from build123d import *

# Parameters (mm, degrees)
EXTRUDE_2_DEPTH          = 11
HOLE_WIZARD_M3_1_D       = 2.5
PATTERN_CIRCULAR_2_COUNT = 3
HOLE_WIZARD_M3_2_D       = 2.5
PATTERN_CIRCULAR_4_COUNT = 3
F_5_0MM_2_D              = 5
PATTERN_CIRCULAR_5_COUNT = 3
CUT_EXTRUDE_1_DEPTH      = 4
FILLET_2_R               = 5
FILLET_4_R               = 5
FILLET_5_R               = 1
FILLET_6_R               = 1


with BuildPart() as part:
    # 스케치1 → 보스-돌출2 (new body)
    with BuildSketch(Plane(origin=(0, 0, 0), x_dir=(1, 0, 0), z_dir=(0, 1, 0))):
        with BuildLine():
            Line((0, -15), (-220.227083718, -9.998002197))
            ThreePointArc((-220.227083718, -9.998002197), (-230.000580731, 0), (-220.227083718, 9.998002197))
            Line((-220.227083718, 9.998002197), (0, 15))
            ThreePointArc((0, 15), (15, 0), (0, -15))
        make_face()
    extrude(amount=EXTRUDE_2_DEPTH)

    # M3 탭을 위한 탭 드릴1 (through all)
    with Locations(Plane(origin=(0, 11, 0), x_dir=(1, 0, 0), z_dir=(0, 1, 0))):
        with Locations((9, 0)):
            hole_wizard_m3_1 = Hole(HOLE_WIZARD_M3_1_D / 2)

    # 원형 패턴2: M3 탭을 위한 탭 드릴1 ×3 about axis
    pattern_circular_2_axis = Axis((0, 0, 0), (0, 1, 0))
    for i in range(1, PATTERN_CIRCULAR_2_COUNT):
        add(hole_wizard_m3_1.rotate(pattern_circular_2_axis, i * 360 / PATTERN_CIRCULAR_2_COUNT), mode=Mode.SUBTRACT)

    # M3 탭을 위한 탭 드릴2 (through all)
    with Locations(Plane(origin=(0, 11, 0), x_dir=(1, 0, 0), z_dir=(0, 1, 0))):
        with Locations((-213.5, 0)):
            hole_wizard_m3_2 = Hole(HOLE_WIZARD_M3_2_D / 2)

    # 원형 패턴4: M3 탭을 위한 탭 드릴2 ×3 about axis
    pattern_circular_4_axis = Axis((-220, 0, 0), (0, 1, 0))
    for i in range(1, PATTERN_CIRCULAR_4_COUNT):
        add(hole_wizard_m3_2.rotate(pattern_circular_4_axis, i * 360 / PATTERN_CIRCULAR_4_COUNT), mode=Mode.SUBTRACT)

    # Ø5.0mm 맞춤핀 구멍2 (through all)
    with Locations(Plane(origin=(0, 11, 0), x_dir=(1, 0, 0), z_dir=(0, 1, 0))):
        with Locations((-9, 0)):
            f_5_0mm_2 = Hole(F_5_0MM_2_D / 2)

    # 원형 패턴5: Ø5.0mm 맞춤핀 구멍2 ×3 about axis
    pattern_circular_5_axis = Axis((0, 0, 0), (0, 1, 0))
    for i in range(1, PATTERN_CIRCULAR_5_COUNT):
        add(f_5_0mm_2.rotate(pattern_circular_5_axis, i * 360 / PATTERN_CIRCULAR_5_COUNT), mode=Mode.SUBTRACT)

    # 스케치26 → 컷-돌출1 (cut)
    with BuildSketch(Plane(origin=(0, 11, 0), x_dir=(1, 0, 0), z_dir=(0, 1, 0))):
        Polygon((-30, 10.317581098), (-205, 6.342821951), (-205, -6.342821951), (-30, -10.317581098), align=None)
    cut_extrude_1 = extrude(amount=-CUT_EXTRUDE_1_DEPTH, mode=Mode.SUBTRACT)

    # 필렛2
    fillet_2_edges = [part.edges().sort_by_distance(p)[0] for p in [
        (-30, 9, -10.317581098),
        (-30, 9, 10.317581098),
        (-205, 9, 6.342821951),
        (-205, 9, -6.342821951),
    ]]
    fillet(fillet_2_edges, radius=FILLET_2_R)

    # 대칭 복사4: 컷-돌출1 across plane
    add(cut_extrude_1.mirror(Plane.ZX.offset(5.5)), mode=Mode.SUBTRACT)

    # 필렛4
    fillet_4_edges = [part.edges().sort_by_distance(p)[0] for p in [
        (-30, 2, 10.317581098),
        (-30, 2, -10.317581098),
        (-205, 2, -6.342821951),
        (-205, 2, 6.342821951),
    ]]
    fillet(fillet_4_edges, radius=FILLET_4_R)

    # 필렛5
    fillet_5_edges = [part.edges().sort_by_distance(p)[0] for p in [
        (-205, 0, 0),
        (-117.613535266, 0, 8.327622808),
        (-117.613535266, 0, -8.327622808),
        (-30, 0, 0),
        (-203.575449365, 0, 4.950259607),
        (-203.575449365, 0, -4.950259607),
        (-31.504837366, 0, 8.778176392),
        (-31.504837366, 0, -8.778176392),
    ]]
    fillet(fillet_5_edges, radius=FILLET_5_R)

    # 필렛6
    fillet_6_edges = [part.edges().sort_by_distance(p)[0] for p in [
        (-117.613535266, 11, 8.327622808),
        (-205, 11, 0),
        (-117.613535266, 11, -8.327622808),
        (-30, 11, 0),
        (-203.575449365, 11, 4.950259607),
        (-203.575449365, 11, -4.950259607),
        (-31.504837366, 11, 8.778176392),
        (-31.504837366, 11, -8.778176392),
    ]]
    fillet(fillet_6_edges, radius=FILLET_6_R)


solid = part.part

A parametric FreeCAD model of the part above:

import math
import FreeCAD as App
import Part
import Sketcher
from FreeCAD import Vector


def edges_at(feature, points):
    """Names of the edges that pass closest to the given points."""
    edges = feature.Shape.Edges
    near = lambda p: min(range(len(edges)), key=lambda i: edges[i].distToShape(Part.Vertex(*p))[0])
    return sorted({f"Edge{near(p) + 1}" for p in points})

doc = App.newDocument("Part")
body = doc.addObject("PartDesign::Body", "Body")

# Sketch on XZ plane
sketch1 = body.newObject("Sketcher::SketchObject", "Sketch")
sketch1.AttachmentSupport = (doc.getObject("XZ_Plane"), [""])
sketch1.MapMode = "FlatFace"
sketch1.addGeometry(Part.LineSegment(Vector(-220, 10, 0), Vector(0, 15, 0)), False)
sketch1.addGeometry(Part.ArcOfCircle(Part.Circle(Vector(0, 0, 0), Vector(0, 0, 1), 15), math.radians(-90), math.radians(90)), False)
sketch1.addGeometry(Part.LineSegment(Vector(0, -15, 0), Vector(-220, -10, 0)), False)
sketch1.addGeometry(Part.ArcOfCircle(Part.Circle(Vector(-220, 0, 0), Vector(0, 0, 1), 10), math.radians(91), math.radians(269)), False)
sketch1.addConstraint(Sketcher.Constraint("Coincident", 0, 2, 1, 2))
sketch1.addConstraint(Sketcher.Constraint("Coincident", 1, 1, 2, 1))
sketch1.addConstraint(Sketcher.Constraint("Tangent", 2, 2, 3, 2))
sketch1.addConstraint(Sketcher.Constraint("Tangent", 3, 1, 0, 1))
sketch1.addConstraint(Sketcher.Constraint("Coincident", 1, 3, -1, 1))
sketch1.addConstraint(Sketcher.Constraint("Symmetric", 2, 2, 3, 1, -1))
sketch1.addConstraint(Sketcher.Constraint("PointOnObject", 0, 2, -2))
sketch1.addConstraint(Sketcher.Constraint("Radius", 1, 15.0))
sketch1.addConstraint(Sketcher.Constraint("DistanceX", 3, 3, -1, 1, 220.0))
sketch1.addConstraint(Sketcher.Constraint("Radius", 3, 10.000581))
pad1 = body.newObject("PartDesign::Pad", "Pad")
pad1.Profile = sketch1
pad1.Length = 11
pad1.Reversed = True

# Sketch on XZ plane
sketch2 = body.newObject("Sketcher::SketchObject", "Sketch001")
sketch2.AttachmentSupport = (doc.getObject("XZ_Plane"), [""])
sketch2.MapMode = "FlatFace"
sketch2.AttachmentOffset = App.Placement(Vector(0, 0, -11), App.Rotation())
sketch2.addGeometry(Part.Circle(Vector(9, 0, 0), Vector(0, 0, 1), 1.2), False)
sketch2.addConstraint(Sketcher.Constraint("PointOnObject", 0, 3, -1))
sketch2.addConstraint(Sketcher.Constraint("Diameter", 0, 2.5))
sketch2.addConstraint(Sketcher.Constraint("DistanceX", -1, 1, 0, 3, 9.0))
doc.recompute()
hole = body.newObject("PartDesign::Hole", "Hole")
hole.Profile = sketch2
hole.ThreadType = "None"
hole.Diameter = 2.5
hole.DepthType = "ThroughAll"
hole.Reversed = True
doc.recompute()

polarpattern = body.newObject("PartDesign::PolarPattern", "PolarPattern")
polarpattern.Originals = [hole]
polarpattern.Axis = (doc.getObject("Y_Axis"), [""])
polarpattern.Angle = 360
polarpattern.Occurrences = 3
body.Tip = polarpattern

# Sketch on XZ plane
sketch3 = body.newObject("Sketcher::SketchObject", "Sketch002")
sketch3.AttachmentSupport = (doc.getObject("XZ_Plane"), [""])
sketch3.MapMode = "FlatFace"
sketch3.AttachmentOffset = App.Placement(Vector(0, 0, -11), App.Rotation())
sketch3.addGeometry(Part.Circle(Vector(-213.5, 0, 0), Vector(0, 0, 1), 1.2), False)
sketch3.addConstraint(Sketcher.Constraint("PointOnObject", 0, 3, -1))
sketch3.addConstraint(Sketcher.Constraint("Diameter", 0, 2.5))
sketch3.addConstraint(Sketcher.Constraint("DistanceX", 0, 3, -1, 1, 213.5))
doc.recompute()
hole2 = body.newObject("PartDesign::Hole", "Hole001")
hole2.Profile = sketch3
hole2.ThreadType = "None"
hole2.Diameter = 2.5
hole2.DepthType = "ThroughAll"
hole2.Reversed = True
doc.recompute()

datumline = body.newObject("PartDesign::Line", "DatumLine")
datumline.Placement = App.Placement(Vector(-220, 0, 0), App.Rotation(Vector(0, 0, 1), Vector(0, 1, 0)))
polarpattern2 = body.newObject("PartDesign::PolarPattern", "PolarPattern001")
polarpattern2.Originals = [hole2]
polarpattern2.Axis = (datumline, [""])
polarpattern2.Angle = 360
polarpattern2.Occurrences = 3
body.Tip = polarpattern2

# Sketch on XZ plane
sketch4 = body.newObject("Sketcher::SketchObject", "Sketch003")
sketch4.AttachmentSupport = (doc.getObject("XZ_Plane"), [""])
sketch4.MapMode = "FlatFace"
sketch4.AttachmentOffset = App.Placement(Vector(0, 0, -11), App.Rotation())
sketch4.addGeometry(Part.Circle(Vector(-9, 0, 0), Vector(0, 0, 1), 2.5), False)
sketch4.addConstraint(Sketcher.Constraint("PointOnObject", 0, 3, -1))
sketch4.addConstraint(Sketcher.Constraint("Diameter", 0, 5.0))
sketch4.addConstraint(Sketcher.Constraint("DistanceX", 0, 3, -1, 1, 9.0))
doc.recompute()
hole3 = body.newObject("PartDesign::Hole", "Hole002")
hole3.Profile = sketch4
hole3.ThreadType = "None"
hole3.Diameter = 5
hole3.DepthType = "ThroughAll"
hole3.Reversed = True
doc.recompute()

polarpattern3 = body.newObject("PartDesign::PolarPattern", "PolarPattern002")
polarpattern3.Originals = [hole3]
polarpattern3.Axis = (doc.getObject("Y_Axis"), [""])
polarpattern3.Angle = 360
polarpattern3.Occurrences = 3
body.Tip = polarpattern3

# Sketch on XZ plane
sketch5 = body.newObject("Sketcher::SketchObject", "Sketch004")
sketch5.AttachmentSupport = (doc.getObject("XZ_Plane"), [""])
sketch5.MapMode = "FlatFace"
sketch5.AttachmentOffset = App.Placement(Vector(0, 0, -11), App.Rotation())
sketch5.addGeometry(Part.LineSegment(Vector(-30, -10, 0), Vector(-205, -6, 0)), False)
sketch5.addGeometry(Part.LineSegment(Vector(-205, -6, 0), Vector(-205, 6, 0)), False)
sketch5.addGeometry(Part.LineSegment(Vector(-205, 6, 0), Vector(-30, 10, 0)), False)
sketch5.addGeometry(Part.LineSegment(Vector(-30, 10, 0), Vector(-30, -10, 0)), False)
sketch5.addConstraint(Sketcher.Constraint("Coincident", 0, 2, 1, 1))
sketch5.addConstraint(Sketcher.Constraint("Coincident", 1, 2, 2, 1))
sketch5.addConstraint(Sketcher.Constraint("Coincident", 2, 2, 3, 1))
sketch5.addConstraint(Sketcher.Constraint("Coincident", 3, 2, 0, 1))
sketch5.addConstraint(Sketcher.Constraint("Vertical", 1))
sketch5.addConstraint(Sketcher.Constraint("Vertical", 3))
sketch5.addConstraint(Sketcher.Constraint("Equal", 0, 2))
sketch5.addConstraint(Sketcher.Constraint("DistanceX", 0, 2, -1, 1, 205.0))
sketch5.addConstraint(Sketcher.Constraint("DistanceX", 2, 2, -1, 1, 30.0))
sketch5.addConstraint(Sketcher.Constraint("DistanceY", 1, 1, 1, 2, 12.685644))
sketch5.addConstraint(Sketcher.Constraint("DistanceY", 3, 2, 3, 1, 20.635162))
sketch5.addConstraint(Sketcher.Constraint("DistanceY", 0, 2, -1, 1, 6.342822))
pocket1 = body.newObject("PartDesign::Pocket", "Pocket")
pocket1.Profile = sketch5
pocket1.Length = 4
pocket1.Reversed = True
doc.recompute()

fillet = body.newObject("PartDesign::Fillet", "Fillet")
fillet.Base = (pocket1, edges_at(pocket1, [
    (-30, 9, -10.318),
    (-30, 9, 10.318),
    (-205, 9, 6.343),
    (-205, 9, -6.343),
]))
fillet.Radius = 5
doc.recompute()

datumplane = body.newObject("PartDesign::Plane", "DatumPlane")
datumplane.AttachmentSupport = (doc.getObject("XZ_Plane"), [""])
datumplane.MapMode = "FlatFace"
datumplane.AttachmentOffset = App.Placement(Vector(0, 0, -5.5), App.Rotation())
mirrored = body.newObject("PartDesign::Mirrored", "Mirrored")
mirrored.Originals = [pocket1]
mirrored.MirrorPlane = (datumplane, [""])
body.Tip = mirrored
doc.recompute()

fillet2 = body.newObject("PartDesign::Fillet", "Fillet001")
fillet2.Base = (mirrored, edges_at(mirrored, [
    (-30, 2, 10.318),
    (-30, 2, -10.318),
    (-205, 2, -6.343),
    (-205, 2, 6.343),
]))
fillet2.Radius = 5
doc.recompute()

fillet3 = body.newObject("PartDesign::Fillet", "Fillet002")
fillet3.Base = (fillet2, edges_at(fillet2, [
    (-205, 0, 0),
    (-117.614, 0, 8.328),
    (-117.614, 0, -8.328),
    (-30, 0, 0),
    (-203.575, 0, 4.95),
    (-203.575, 0, -4.95),
    (-31.505, 0, 8.778),
    (-31.505, 0, -8.778),
]))
fillet3.Radius = 1
doc.recompute()

fillet4 = body.newObject("PartDesign::Fillet", "Fillet003")
fillet4.Base = (fillet3, edges_at(fillet3, [
    (-117.614, 11, 8.328),
    (-205, 11, 0),
    (-117.614, 11, -8.328),
    (-30, 11, 0),
    (-203.575, 11, 4.95),
    (-203.575, 11, -4.95),
    (-31.505, 11, 8.778),
    (-31.505, 11, -8.778),
]))
fillet4.Radius = 1

doc.recompute()
